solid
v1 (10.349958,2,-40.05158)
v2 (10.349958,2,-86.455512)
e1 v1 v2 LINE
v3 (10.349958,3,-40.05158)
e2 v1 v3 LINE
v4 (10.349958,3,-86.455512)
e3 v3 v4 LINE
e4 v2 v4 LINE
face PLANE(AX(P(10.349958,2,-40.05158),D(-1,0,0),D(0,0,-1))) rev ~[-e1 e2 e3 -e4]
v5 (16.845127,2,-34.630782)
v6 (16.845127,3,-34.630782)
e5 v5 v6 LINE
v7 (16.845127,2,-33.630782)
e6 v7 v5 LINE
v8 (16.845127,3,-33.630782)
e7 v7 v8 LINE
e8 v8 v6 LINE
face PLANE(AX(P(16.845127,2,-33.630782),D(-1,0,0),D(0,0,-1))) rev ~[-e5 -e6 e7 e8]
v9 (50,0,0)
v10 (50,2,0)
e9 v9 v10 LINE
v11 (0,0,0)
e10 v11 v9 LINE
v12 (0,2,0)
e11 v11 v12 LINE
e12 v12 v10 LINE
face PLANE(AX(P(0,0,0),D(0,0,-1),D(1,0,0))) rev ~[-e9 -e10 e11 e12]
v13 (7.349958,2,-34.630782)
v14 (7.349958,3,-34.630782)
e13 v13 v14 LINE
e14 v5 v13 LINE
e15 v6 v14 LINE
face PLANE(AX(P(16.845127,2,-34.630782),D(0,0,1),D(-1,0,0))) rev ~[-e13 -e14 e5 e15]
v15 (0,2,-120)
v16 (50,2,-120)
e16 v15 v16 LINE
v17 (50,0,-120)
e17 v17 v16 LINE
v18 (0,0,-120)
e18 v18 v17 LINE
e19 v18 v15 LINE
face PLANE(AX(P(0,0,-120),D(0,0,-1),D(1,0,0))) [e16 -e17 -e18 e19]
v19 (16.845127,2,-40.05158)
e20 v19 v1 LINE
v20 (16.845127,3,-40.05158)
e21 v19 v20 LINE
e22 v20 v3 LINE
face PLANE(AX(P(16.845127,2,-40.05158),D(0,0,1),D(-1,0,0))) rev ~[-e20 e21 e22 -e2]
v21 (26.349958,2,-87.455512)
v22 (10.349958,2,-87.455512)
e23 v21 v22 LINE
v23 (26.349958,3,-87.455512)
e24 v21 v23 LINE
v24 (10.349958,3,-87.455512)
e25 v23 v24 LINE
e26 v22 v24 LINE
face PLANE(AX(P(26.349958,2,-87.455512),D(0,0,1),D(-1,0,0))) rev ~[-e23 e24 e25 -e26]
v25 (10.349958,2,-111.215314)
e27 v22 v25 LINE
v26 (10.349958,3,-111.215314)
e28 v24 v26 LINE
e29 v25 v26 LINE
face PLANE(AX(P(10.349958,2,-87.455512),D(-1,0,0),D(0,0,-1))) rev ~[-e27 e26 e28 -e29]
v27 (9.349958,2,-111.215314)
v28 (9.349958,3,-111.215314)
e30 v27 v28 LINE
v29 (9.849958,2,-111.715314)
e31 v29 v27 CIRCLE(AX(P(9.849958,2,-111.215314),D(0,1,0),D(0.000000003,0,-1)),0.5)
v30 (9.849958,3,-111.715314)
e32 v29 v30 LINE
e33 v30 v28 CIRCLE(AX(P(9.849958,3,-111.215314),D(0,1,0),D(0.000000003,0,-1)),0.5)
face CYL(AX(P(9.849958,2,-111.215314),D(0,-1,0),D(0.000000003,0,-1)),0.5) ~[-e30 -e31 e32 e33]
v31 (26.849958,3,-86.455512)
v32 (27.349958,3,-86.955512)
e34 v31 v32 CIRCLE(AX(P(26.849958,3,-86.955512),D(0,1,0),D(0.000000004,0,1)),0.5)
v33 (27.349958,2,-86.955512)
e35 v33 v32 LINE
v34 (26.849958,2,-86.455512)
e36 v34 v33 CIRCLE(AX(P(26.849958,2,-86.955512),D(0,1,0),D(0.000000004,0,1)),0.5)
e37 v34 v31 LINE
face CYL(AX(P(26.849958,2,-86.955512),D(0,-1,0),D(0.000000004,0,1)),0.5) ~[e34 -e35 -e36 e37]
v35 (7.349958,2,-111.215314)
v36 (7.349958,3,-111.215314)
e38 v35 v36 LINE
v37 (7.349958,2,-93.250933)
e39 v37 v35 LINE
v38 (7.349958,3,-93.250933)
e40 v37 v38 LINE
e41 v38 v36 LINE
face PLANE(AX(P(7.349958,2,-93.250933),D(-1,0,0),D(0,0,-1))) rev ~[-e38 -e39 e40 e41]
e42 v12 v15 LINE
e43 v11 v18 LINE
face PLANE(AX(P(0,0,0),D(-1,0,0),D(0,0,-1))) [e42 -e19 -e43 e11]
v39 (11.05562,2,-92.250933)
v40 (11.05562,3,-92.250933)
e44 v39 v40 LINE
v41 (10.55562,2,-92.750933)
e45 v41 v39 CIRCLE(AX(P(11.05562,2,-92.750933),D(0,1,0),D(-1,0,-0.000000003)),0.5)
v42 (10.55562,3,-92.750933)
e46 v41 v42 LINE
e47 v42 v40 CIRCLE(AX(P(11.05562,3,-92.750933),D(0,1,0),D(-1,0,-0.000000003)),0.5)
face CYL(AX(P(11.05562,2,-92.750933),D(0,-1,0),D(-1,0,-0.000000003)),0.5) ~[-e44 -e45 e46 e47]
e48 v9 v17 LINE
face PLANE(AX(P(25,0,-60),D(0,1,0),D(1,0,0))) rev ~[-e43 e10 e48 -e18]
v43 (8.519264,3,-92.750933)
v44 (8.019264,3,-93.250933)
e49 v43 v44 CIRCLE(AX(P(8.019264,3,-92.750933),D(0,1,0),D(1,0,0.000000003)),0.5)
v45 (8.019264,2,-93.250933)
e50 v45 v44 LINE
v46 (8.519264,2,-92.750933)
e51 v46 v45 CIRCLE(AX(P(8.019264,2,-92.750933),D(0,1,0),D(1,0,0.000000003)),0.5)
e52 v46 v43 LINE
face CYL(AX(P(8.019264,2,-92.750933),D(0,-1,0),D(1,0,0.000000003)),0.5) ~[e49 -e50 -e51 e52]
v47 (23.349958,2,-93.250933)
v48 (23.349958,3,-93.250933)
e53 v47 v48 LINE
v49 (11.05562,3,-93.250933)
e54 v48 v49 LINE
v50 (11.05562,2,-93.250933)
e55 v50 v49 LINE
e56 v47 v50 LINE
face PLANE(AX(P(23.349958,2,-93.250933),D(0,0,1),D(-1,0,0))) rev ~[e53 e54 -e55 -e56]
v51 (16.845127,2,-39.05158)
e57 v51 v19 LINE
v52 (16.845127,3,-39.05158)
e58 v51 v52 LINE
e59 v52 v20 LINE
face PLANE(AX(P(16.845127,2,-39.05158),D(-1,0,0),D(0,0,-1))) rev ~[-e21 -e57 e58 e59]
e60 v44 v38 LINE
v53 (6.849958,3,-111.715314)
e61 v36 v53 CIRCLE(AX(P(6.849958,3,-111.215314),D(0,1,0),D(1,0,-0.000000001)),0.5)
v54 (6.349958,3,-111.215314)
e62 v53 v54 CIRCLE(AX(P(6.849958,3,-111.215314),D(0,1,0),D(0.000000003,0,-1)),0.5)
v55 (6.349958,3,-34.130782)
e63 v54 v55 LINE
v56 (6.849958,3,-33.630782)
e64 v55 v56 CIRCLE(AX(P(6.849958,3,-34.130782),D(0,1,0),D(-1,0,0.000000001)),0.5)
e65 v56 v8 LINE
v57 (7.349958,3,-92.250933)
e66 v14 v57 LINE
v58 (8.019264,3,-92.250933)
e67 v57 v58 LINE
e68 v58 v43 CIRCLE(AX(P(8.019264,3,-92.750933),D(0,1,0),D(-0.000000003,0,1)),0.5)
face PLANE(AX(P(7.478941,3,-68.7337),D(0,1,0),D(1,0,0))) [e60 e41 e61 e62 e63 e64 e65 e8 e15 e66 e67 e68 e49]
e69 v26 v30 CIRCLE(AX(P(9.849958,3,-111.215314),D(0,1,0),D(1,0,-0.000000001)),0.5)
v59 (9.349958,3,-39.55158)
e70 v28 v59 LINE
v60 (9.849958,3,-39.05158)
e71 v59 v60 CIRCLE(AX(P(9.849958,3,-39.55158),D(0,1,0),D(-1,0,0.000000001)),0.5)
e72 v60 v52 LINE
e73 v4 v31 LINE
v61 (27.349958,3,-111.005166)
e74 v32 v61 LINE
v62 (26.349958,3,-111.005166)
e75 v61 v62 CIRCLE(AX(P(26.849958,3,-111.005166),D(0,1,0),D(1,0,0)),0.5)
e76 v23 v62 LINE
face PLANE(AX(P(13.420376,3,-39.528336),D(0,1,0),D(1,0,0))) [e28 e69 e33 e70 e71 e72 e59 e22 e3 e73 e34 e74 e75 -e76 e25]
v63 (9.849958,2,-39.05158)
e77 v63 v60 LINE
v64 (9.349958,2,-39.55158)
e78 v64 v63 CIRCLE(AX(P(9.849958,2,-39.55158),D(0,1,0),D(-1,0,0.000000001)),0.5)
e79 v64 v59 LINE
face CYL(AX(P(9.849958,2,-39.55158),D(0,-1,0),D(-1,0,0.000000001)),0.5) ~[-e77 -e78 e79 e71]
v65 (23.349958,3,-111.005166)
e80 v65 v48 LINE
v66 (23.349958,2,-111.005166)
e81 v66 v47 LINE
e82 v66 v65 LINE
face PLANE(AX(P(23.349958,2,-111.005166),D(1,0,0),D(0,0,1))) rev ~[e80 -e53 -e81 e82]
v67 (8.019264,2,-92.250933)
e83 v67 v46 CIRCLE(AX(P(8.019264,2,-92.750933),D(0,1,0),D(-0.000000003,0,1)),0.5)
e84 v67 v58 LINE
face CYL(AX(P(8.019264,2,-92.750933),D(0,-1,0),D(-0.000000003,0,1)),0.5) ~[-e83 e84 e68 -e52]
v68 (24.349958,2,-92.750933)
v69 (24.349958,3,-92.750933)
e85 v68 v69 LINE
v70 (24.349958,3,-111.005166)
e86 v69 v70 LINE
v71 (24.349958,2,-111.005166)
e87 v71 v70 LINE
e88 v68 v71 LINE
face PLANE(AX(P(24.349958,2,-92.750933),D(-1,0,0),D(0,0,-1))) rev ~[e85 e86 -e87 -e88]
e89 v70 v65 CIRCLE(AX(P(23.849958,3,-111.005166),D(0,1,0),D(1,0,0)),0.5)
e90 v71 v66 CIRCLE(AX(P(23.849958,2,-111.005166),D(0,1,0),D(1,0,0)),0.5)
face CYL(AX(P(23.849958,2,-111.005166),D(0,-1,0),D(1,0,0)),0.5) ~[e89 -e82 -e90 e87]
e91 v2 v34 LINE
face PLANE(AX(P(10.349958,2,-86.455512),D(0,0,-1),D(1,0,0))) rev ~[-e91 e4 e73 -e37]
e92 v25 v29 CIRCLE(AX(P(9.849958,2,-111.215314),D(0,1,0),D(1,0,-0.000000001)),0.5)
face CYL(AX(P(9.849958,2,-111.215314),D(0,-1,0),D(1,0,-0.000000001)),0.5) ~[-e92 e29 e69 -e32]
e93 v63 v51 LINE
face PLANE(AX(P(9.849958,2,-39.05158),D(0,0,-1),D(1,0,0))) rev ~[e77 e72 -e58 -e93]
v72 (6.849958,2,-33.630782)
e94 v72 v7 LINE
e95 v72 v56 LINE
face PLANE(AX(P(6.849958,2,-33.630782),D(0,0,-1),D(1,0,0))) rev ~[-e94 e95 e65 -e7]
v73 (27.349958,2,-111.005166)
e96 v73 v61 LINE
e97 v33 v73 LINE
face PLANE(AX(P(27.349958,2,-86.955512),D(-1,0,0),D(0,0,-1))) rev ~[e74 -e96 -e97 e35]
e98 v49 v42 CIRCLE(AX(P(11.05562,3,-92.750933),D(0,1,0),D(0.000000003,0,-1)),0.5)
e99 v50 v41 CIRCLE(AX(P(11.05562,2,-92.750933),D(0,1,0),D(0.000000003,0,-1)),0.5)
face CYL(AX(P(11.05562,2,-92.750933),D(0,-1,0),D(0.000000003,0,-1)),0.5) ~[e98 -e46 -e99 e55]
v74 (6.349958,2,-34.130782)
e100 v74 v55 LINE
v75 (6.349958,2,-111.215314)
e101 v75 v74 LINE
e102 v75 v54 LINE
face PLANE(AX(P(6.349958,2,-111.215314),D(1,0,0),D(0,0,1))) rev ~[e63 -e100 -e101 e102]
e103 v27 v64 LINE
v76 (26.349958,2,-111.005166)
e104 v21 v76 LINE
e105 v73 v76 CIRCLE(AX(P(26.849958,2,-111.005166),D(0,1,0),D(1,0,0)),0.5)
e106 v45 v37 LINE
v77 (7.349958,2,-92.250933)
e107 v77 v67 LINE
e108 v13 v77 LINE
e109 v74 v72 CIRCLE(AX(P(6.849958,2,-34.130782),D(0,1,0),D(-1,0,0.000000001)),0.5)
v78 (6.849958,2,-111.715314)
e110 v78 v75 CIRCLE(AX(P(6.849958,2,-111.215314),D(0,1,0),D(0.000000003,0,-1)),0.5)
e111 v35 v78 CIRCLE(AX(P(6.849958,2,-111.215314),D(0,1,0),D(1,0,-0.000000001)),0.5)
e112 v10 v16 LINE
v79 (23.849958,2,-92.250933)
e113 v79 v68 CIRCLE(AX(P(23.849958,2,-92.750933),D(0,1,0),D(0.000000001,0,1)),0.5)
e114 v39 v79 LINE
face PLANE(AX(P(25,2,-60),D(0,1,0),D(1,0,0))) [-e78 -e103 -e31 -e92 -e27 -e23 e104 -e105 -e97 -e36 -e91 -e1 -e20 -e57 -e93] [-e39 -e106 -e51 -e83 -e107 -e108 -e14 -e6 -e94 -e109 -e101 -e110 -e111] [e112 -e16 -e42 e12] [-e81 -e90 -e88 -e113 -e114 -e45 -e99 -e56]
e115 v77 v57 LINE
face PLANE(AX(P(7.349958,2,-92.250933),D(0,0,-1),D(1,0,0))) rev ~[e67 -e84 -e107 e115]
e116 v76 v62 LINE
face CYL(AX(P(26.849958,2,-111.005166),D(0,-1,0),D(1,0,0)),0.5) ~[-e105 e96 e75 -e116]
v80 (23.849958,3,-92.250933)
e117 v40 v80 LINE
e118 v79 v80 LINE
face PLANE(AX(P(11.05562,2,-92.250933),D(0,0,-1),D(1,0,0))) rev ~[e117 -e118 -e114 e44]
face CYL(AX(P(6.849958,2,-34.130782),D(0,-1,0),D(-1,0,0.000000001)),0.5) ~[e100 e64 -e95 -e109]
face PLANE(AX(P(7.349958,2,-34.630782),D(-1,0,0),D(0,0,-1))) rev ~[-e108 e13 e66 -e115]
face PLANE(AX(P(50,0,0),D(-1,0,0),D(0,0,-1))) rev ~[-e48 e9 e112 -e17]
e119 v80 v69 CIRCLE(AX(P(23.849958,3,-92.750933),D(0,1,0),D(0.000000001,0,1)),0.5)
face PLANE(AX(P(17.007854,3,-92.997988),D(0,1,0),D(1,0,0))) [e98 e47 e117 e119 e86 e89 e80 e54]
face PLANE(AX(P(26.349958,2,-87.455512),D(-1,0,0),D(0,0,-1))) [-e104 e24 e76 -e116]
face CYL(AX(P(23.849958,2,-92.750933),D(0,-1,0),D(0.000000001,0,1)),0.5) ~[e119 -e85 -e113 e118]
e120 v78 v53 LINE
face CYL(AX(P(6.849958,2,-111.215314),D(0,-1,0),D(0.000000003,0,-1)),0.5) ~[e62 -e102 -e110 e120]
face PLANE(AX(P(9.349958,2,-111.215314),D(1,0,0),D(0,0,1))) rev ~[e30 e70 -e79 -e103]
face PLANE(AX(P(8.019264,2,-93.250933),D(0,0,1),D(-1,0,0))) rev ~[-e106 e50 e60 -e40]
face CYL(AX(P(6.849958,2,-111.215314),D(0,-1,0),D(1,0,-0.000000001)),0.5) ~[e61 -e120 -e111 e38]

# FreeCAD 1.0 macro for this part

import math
import FreeCAD as App
import Part
import Sketcher

V = App.Vector
Q = App.Units.Quantity

doc = App.newDocument("Part")
body = doc.addObject("PartDesign::Body", "Body")

# Sketch on XZ plane
sketch1 = body.newObject("Sketcher::SketchObject", "Sketch")
sketch1.AttachmentSupport = (doc.getObject("XZ_Plane"), [""])
sketch1.MapMode = "FlatFace"
sketch1.addGeometry([
    Part.LineSegment(V(0, -120, 0), V(0, 0, 0)),
    Part.LineSegment(V(0, 0, 0), V(50, 0, 0)),
    Part.LineSegment(V(50, 0, 0), V(50, -120, 0)),
    Part.LineSegment(V(50, -120, 0), V(0, -120, 0)),
], False)
sketch1.addConstraint([
    Sketcher.Constraint("Coincident", 0, 2, 1, 1),
    Sketcher.Constraint("Coincident", 1, 2, 2, 1),
    Sketcher.Constraint("Coincident", 2, 2, 3, 1),
    Sketcher.Constraint("Coincident", 3, 2, 0, 1),
    Sketcher.Constraint("Vertical", 0),
    Sketcher.Constraint("Horizontal", 1),
    Sketcher.Constraint("Vertical", 2),
    Sketcher.Constraint("Horizontal", 3),
    Sketcher.Constraint("Coincident", 0, 2, -1, 1),
    Sketcher.Constraint("DistanceX", 1, 1, 1, 2, Q("50 mm")),
    Sketcher.Constraint("DistanceY", 0, 1, 0, 2, Q("120 mm")),
])
pad1 = body.newObject("PartDesign::Pad", "Pad")
pad1.Profile = sketch1
pad1.Length = 2
pad1.Reversed = True

# Sketch on XZ plane
sketch2 = body.newObject("Sketcher::SketchObject", "Sketch001")
sketch2.AttachmentSupport = (doc.getObject("XZ_Plane"), [""])
sketch2.MapMode = "FlatFace"
sketch2.AttachmentOffset = App.Placement(V(0, 0, -2), App.Rotation())
sketch2.addGeometry([
    Part.LineSegment(V(9.849958, -39.05158, 0), V(16.845127, -39.05158, 0)),  # 0
    Part.LineSegment(V(16.845127, -39.05158, 0), V(16.845127, -40.05158, 0)),  # 1
    Part.LineSegment(V(16.845127, -40.05158, 0), V(10.349958, -40.05158, 0)),  # 2
    Part.LineSegment(V(10.349958, -40.05158, 0), V(10.349958, -86.455512, 0)),  # 3
    Part.LineSegment(V(10.349958, -86.455512, 0), V(26.849958, -86.455512, 0)),  # 4
    Part.ArcOfCircle(Part.Circle(V(26.849958, -86.955512, 0), V(0, 0, 1), 0.5), math.radians(0), math.radians(90)),  # 5
    Part.LineSegment(V(27.349958, -86.955512, 0), V(27.349958, -111.005166, 0)),  # 6
    Part.ArcOfCircle(Part.Circle(V(26.849958, -111.005166, 0), V(0, 0, 1), 0.5), math.radians(180), math.radians(360)),  # 7
    Part.LineSegment(V(26.349958, -111.005166, 0), V(26.349958, -87.455512, 0)),  # 8
    Part.LineSegment(V(26.349958, -87.455512, 0), V(10.349958, -87.455512, 0)),  # 9
    Part.LineSegment(V(10.349958, -87.455512, 0), V(10.349958, -111.215314, 0)),  # 10
    Part.ArcOfCircle(Part.Circle(V(9.849958, -111.215314, 0), V(0, 0, 1), 0.5), math.radians(-90), math.radians(0)),  # 11
    Part.ArcOfCircle(Part.Circle(V(9.849958, -111.215314, 0), V(0, 0, 1), 0.5), math.radians(180), math.radians(270)),  # 12
    Part.LineSegment(V(9.349958, -111.215314, 0), V(9.349958, -39.55158, 0)),  # 13
    Part.ArcOfCircle(Part.Circle(V(9.849958, -39.55158, 0), V(0, 0, 1), 0.5), math.radians(90), math.radians(180)),  # 14
    Part.LineSegment(V(6.849958, -33.630782, 0), V(16.845127, -33.630782, 0)),  # 15
    Part.LineSegment(V(16.845127, -33.630782, 0), V(16.845127, -34.630782, 0)),  # 16
    Part.LineSegment(V(16.845127, -34.630782, 0), V(7.349958, -34.630782, 0)),  # 17
    Part.LineSegment(V(7.349958, -34.630782, 0), V(7.349958, -92.250933, 0)),  # 18
    Part.LineSegment(V(7.349958, -92.250933, 0), V(8.019264, -92.250933, 0)),  # 19
    Part.ArcOfCircle(Part.Circle(V(8.019264, -92.750933, 0), V(0, 0, 1), 0.5), math.radians(0), math.radians(90)),  # 20
    Part.ArcOfCircle(Part.Circle(V(8.019264, -92.750933, 0), V(0, 0, 1), 0.5), math.radians(-90), math.radians(0)),  # 21
    Part.LineSegment(V(8.019264, -93.250933, 0), V(7.349958, -93.250933, 0)),  # 22
    Part.LineSegment(V(7.349958, -93.250933, 0), V(7.349958, -111.215314, 0)),  # 23
    Part.ArcOfCircle(Part.Circle(V(6.849958, -111.215314, 0), V(0, 0, 1), 0.5), math.radians(-90), math.radians(0)),  # 24
    Part.ArcOfCircle(Part.Circle(V(6.849958, -111.215314, 0), V(0, 0, 1), 0.5), math.radians(180), math.radians(270)),  # 25
    Part.LineSegment(V(6.349958, -111.215314, 0), V(6.349958, -34.130782, 0)),  # 26
    Part.ArcOfCircle(Part.Circle(V(6.849958, -34.130782, 0), V(0, 0, 1), 0.5), math.radians(90), math.radians(180)),  # 27
    Part.ArcOfCircle(Part.Circle(V(11.05562, -92.750933, 0), V(0, 0, 1), 0.5), math.radians(180), math.radians(270)),  # 28
    Part.ArcOfCircle(Part.Circle(V(11.05562, -92.750933, 0), V(0, 0, 1), 0.5), math.radians(90), math.radians(180)),  # 29
    Part.LineSegment(V(11.05562, -92.250933, 0), V(23.849958, -92.250933, 0)),  # 30
    Part.ArcOfCircle(Part.Circle(V(23.849958, -92.750933, 0), V(0, 0, 1), 0.5), math.radians(0), math.radians(90)),  # 31
    Part.LineSegment(V(24.349958, -92.750933, 0), V(24.349958, -111.005166, 0)),  # 32
    Part.ArcOfCircle(Part.Circle(V(23.849958, -111.005166, 0), V(0, 0, 1), 0.5), math.radians(180), math.radians(360)),  # 33
    Part.LineSegment(V(23.349958, -111.005166, 0), V(23.349958, -93.250933, 0)),  # 34
    Part.LineSegment(V(23.349958, -93.250933, 0), V(11.05562, -93.250933, 0)),  # 35
], False)
sketch2.addConstraint([
    Sketcher.Constraint("Coincident", 0, 2, 1, 1),
    Sketcher.Constraint("Coincident", 1, 2, 2, 1),
    Sketcher.Constraint("Coincident", 2, 2, 3, 1),
    Sketcher.Constraint("Coincident", 3, 2, 4, 1),
    Sketcher.Constraint("Tangent", 4, 2, 5, 2),
    Sketcher.Constraint("Tangent", 5, 1, 6, 1),
    Sketcher.Constraint("Tangent", 6, 2, 7, 2),
    Sketcher.Constraint("Tangent", 7, 1, 8, 1),
    Sketcher.Constraint("Coincident", 8, 2, 9, 1),
    Sketcher.Constraint("Coincident", 9, 2, 10, 1),
    Sketcher.Constraint("Tangent", 10, 2, 11, 2),
    Sketcher.Constraint("Tangent", 11, 1, 12, 2),
    Sketcher.Constraint("Tangent", 12, 1, 13, 1),
    Sketcher.Constraint("Tangent", 13, 2, 14, 2),
    Sketcher.Constraint("Tangent", 14, 1, 0, 1),
    Sketcher.Constraint("Coincident", 15, 2, 16, 1),
    Sketcher.Constraint("Coincident", 16, 2, 17, 1),
    Sketcher.Constraint("Coincident", 17, 2, 18, 1),
    Sketcher.Constraint("Coincident", 18, 2, 19, 1),
    Sketcher.Constraint("Tangent", 19, 2, 20, 2),
    Sketcher.Constraint("Tangent", 20, 1, 21, 2),
    Sketcher.Constraint("Tangent", 21, 1, 22, 1),
    Sketcher.Constraint("Coincident", 22, 2, 23, 1),
    Sketcher.Constraint("Tangent", 23, 2, 24, 2),
    Sketcher.Constraint("Tangent", 24, 1, 25, 2),
    Sketcher.Constraint("Tangent", 25, 1, 26, 1),
    Sketcher.Constraint("Tangent", 26, 2, 27, 2),
    Sketcher.Constraint("Tangent", 27, 1, 15, 1),
    Sketcher.Constraint("Tangent", 28, 1, 29, 2),
    Sketcher.Constraint("Tangent", 29, 1, 30, 1),
    Sketcher.Constraint("Tangent", 30, 2, 31, 2),
    Sketcher.Constraint("Tangent", 31, 1, 32, 1),
    Sketcher.Constraint("Tangent", 32, 2, 33, 2),
    Sketcher.Constraint("Tangent", 33, 1, 34, 1),
    Sketcher.Constraint("Coincident", 34, 2, 35, 1),
    Sketcher.Constraint("Tangent", 35, 2, 28, 2),
    Sketcher.Constraint("Horizontal", 0),
    Sketcher.Constraint("Vertical", 1),
    Sketcher.Constraint("Horizontal", 2),
    Sketcher.Constraint("Vertical", 3),
    Sketcher.Constraint("Horizontal", 4),
    Sketcher.Constraint("Vertical", 6),
    Sketcher.Constraint("Vertical", 8),
    Sketcher.Constraint("Horizontal", 9),
    Sketcher.Constraint("Vertical", 10),
    Sketcher.Constraint("Vertical", 13),
    Sketcher.Constraint("Horizontal", 15),
    Sketcher.Constraint("Vertical", 16),
    Sketcher.Constraint("Horizontal", 17),
    Sketcher.Constraint("Vertical", 18),
    Sketcher.Constraint("Horizontal", 19),
    Sketcher.Constraint("Horizontal", 22),
    Sketcher.Constraint("Vertical", 23),
    Sketcher.Constraint("Vertical", 26),
    Sketcher.Constraint("Horizontal", 30),
    Sketcher.Constraint("Vertical", 32),
    Sketcher.Constraint("Vertical", 34),
    Sketcher.Constraint("Horizontal", 35),
    Sketcher.Constraint("Equal", 5, 7),
    Sketcher.Constraint("Equal", 7, 11),
    Sketcher.Constraint("Equal", 11, 12),
    Sketcher.Constraint("Equal", 12, 14),
    Sketcher.Constraint("Equal", 14, 20),
    Sketcher.Constraint("Equal", 20, 21),
    Sketcher.Constraint("Equal", 21, 24),
    Sketcher.Constraint("Equal", 24, 25),
    Sketcher.Constraint("Equal", 25, 27),
    Sketcher.Constraint("Equal", 27, 28),
    Sketcher.Constraint("Equal", 28, 29),
    Sketcher.Constraint("Equal", 29, 31),
    Sketcher.Constraint("Equal", 31, 33),
    Sketcher.Constraint("Horizontal", 12, 3, 24, 3),
    Sketcher.Constraint("Horizontal", 21, 3, 28, 3),
    Sketcher.Constraint("Horizontal", 7, 3, 33, 3),
    Sketcher.Constraint("Horizontal", 31, 3, 20, 1),
    Sketcher.Constraint("Horizontal", 20, 1, 28, 1),
    Sketcher.Constraint("Vertical", 3, 2, 9, 2),
    Sketcher.Constraint("Vertical", 14, 3, 11, 1),
    Sketcher.Constraint("Vertical", 1, 2, 15, 2),
    Sketcher.Constraint("Vertical", 18, 2, 22, 2),
    Sketcher.Constraint("Vertical", 27, 3, 24, 1),
    Sketcher.Constraint("Equal", 1, 16),
    Sketcher.Constraint("Radius", 5, Q("0.5 mm")),
    Sketcher.Constraint("DistanceX", 9, 2, 9, 1, Q("16 mm")),
    Sketcher.Constraint("DistanceY", 1, 2, 1, 1, Q("1 mm")),
    Sketcher.Constraint("DistanceX", 24, 3, 12, 3, Q("3 mm")),
    Sketcher.Constraint("DistanceX", 31, 3, 5, 3, Q("3 mm")),
    Sketcher.Constraint("DistanceY", 8, 2, 4, 2, Q("1 mm")),
    Sketcher.Constraint("DistanceX", 0, 1, 0, 2, Q("6.995169 mm")),
    Sketcher.Constraint("DistanceY", 3, 2, 3, 1, Q("46.403932 mm")),
    Sketcher.Constraint("DistanceY", 18, 2, 18, 1, Q("57.62015 mm")),
    Sketcher.Constraint("DistanceY", 23, 2, 23, 1, Q("17.964382 mm")),
    Sketcher.Constraint("DistanceX", 19, 1, 19, 2, Q("0.669306 mm")),
    Sketcher.Constraint("DistanceX", 30, 1, 30, 2, Q("12.794338 mm")),
    Sketcher.Constraint("DistanceY", 6, 2, 6, 1, Q("24.049655 mm")),
    Sketcher.Constraint("DistanceY", 10, 2, 10, 1, Q("23.759803 mm")),
    Sketcher.Constraint("DistanceX", -1, 1, 5, 3, Q("26.849958 mm")),
    Sketcher.Constraint("DistanceY", 5, 3, -1, 1, Q("86.955512 mm")),
])
pad2 = body.newObject("PartDesign::Pad", "Pad001")
pad2.Profile = sketch2
pad2.Length = 1
pad2.Reversed = True

doc.recompute()
